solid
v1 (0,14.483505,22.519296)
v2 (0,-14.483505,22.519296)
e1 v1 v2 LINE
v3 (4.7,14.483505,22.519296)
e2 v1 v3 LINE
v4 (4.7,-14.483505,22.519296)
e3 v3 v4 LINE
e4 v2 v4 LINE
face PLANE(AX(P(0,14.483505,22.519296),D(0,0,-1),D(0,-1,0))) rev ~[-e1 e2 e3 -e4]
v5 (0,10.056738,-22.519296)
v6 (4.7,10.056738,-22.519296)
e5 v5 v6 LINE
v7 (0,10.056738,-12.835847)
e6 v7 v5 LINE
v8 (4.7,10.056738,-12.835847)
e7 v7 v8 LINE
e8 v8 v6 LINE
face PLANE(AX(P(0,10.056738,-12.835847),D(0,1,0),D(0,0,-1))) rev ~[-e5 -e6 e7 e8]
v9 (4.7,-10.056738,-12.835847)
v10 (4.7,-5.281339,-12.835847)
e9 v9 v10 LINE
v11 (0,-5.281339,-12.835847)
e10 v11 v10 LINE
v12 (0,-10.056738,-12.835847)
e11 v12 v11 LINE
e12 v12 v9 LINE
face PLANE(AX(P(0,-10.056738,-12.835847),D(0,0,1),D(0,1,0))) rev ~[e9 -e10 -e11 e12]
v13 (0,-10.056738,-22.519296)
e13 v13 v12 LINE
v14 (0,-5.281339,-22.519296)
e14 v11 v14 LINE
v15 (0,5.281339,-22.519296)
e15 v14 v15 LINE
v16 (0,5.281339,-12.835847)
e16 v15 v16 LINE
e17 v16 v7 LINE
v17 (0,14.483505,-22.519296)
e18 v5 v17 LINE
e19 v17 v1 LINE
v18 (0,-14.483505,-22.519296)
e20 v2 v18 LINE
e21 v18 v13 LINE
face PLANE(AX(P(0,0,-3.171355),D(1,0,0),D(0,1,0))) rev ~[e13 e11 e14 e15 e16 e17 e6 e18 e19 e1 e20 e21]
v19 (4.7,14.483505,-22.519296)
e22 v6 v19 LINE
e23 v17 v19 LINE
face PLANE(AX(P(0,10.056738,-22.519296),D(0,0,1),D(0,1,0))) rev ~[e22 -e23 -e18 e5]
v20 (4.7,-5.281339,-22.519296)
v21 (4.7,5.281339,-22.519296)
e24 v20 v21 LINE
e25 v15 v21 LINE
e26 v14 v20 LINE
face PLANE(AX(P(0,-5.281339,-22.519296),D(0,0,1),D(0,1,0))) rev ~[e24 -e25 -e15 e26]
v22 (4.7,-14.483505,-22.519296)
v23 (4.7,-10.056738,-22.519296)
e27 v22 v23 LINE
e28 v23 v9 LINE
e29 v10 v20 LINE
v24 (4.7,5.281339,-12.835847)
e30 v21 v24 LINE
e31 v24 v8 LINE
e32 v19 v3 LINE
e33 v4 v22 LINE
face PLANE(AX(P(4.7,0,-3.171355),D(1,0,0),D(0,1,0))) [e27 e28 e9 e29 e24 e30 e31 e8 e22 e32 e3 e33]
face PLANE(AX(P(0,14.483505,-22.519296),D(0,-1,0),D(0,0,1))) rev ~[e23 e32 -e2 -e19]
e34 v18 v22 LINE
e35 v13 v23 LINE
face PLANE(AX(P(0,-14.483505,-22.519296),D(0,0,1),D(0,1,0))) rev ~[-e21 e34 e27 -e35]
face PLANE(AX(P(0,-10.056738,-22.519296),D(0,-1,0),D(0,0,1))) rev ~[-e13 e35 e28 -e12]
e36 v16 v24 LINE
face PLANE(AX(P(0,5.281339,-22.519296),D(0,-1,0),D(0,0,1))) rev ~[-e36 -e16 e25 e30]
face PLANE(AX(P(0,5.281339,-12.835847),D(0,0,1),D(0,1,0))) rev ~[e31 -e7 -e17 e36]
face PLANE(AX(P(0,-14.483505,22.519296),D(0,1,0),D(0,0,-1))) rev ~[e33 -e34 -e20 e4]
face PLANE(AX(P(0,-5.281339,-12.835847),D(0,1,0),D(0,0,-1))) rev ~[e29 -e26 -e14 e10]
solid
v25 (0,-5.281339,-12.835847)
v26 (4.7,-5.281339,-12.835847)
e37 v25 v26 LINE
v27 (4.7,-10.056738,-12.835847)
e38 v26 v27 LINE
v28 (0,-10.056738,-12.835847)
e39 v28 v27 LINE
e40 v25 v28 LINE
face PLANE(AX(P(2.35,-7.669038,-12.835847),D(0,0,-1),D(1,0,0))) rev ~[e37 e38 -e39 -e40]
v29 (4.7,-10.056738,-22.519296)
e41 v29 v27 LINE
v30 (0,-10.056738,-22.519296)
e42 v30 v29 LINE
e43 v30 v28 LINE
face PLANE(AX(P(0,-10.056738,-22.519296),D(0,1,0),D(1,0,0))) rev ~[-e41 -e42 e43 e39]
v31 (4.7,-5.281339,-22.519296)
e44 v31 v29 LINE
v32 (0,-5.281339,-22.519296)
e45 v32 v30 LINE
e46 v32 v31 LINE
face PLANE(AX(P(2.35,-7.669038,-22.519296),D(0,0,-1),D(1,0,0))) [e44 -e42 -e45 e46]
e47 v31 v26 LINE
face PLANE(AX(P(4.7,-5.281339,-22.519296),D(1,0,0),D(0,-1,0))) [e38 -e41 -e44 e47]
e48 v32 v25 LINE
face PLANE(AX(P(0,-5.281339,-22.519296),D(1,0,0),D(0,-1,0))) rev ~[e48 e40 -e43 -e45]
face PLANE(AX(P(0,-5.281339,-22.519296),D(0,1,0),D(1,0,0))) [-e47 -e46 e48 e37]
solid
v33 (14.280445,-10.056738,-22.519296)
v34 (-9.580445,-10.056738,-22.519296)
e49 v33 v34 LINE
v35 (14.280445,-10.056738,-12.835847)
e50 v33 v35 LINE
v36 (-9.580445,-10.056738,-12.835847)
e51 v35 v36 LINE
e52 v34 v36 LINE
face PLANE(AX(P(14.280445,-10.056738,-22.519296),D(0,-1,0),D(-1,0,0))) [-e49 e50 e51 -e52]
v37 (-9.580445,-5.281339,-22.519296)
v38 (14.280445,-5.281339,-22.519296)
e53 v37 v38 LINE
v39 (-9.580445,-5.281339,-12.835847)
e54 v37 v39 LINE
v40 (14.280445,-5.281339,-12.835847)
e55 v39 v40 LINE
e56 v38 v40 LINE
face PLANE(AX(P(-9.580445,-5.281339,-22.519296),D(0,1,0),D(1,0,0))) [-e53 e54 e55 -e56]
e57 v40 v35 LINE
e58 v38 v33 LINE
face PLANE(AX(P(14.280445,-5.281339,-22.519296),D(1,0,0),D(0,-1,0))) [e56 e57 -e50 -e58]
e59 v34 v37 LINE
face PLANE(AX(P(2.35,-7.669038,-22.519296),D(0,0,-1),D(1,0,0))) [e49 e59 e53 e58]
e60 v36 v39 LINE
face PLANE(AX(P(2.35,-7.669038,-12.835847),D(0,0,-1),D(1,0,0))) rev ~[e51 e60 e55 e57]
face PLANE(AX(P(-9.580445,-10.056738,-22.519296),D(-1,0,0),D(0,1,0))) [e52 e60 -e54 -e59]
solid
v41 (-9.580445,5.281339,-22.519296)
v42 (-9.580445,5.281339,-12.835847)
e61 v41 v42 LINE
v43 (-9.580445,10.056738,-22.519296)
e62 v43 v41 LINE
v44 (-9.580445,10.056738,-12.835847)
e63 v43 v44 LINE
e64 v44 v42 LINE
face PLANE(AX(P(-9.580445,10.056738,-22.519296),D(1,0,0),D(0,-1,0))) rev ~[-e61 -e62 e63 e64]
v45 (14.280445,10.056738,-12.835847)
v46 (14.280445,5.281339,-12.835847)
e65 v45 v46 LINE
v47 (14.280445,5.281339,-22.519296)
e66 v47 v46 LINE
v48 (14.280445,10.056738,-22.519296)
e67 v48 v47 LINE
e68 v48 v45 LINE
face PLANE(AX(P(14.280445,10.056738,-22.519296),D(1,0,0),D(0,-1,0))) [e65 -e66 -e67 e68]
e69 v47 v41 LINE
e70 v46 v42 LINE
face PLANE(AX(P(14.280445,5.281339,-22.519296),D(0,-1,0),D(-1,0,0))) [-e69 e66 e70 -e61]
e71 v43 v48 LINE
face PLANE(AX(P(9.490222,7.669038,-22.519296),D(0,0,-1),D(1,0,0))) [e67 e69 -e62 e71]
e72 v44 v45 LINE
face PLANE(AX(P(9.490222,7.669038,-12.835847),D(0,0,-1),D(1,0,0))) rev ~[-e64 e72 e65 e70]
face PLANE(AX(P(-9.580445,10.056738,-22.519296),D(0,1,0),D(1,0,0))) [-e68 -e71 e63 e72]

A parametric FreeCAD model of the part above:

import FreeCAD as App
import Part
import Sketcher
Q = App.Units.Quantity


def add_polygon(sketch, points):
    """Adds a closed chain of lines whose ends are joined by coincident constraints."""
    first, n = sketch.GeometryCount, len(points)
    for a, b in zip(points, points[1:] + points[:1]):
        sketch.addGeometry(Part.LineSegment(App.Vector(*a, 0), App.Vector(*b, 0)), False)
    for i in range(n):
        sketch.addConstraint(Sketcher.Constraint("Coincident", first + i, 2, first + (i + 1) % n, 1))

doc = App.newDocument("Part")
body = doc.addObject("PartDesign::Body", "Body")

sketch1 = body.newObject("Sketcher::SketchObject", "Sketch")
sketch1.AttachmentSupport = (doc.getObject("YZ_Plane"), [""])
sketch1.MapMode = "FlatFace"
add_polygon(sketch1, [(10.1, -22.5), (14.5, -22.5), (14.5, 22.5), (-14.5, 22.5), (-14.5, -22.5), (-10.1, -22.5), (-10.1, -12.8), (-5.3, -12.8), (-5.3, -22.5), (5.3, -22.5), (5.3, -12.8), (10.1, -12.8)])
sketch1.addConstraint(Sketcher.Constraint("Horizontal", 0))
sketch1.addConstraint(Sketcher.Constraint("Vertical", 1))
sketch1.addConstraint(Sketcher.Constraint("Horizontal", 2))
sketch1.addConstraint(Sketcher.Constraint("Vertical", 3))
sketch1.addConstraint(Sketcher.Constraint("Horizontal", 4))
sketch1.addConstraint(Sketcher.Constraint("Vertical", 5))
sketch1.addConstraint(Sketcher.Constraint("Horizontal", 6))
sketch1.addConstraint(Sketcher.Constraint("Vertical", 7))
sketch1.addConstraint(Sketcher.Constraint("Horizontal", 8))
sketch1.addConstraint(Sketcher.Constraint("Vertical", 9))
sketch1.addConstraint(Sketcher.Constraint("Horizontal", 10))
sketch1.addConstraint(Sketcher.Constraint("Vertical", 11))
sketch1.addConstraint(Sketcher.Constraint("Symmetric", 0, 2, 2, 2, -1, 1))
sketch1.addConstraint(Sketcher.Constraint("Symmetric", 6, 2, 9, 2, -2))
sketch1.addConstraint(Sketcher.Constraint("Symmetric", 4, 2, 11, 2, -2))
sketch1.addConstraint(Sketcher.Constraint("Horizontal", 4, 2, 7, 2))
sketch1.addConstraint(Sketcher.Constraint("DistanceX", 6, 1, 6, 2, Q("4.775399 mm")))
sketch1.addConstraint(Sketcher.Constraint("DistanceX", 2, 2, 2, 1, Q("28.96701 mm")))
sketch1.addConstraint(Sketcher.Constraint("DistanceY", 5, 1, 5, 2, Q("9.683449 mm")))
sketch1.addConstraint(Sketcher.Constraint("DistanceX", 0, 1, 0, 2, Q("4.426767 mm")))
sketch1.addConstraint(Sketcher.Constraint("DistanceY", 1, 1, 1, 2, Q("45.038592 mm")))
pad1 = body.newObject("PartDesign::Pad", "Pad")
pad1.Profile = sketch1
pad1.Length = 4.7
body2 = doc.addObject("PartDesign::Body", "Body001")

sketch2 = body2.newObject("Sketcher::SketchObject", "Sketch001")
sketch2.AttachmentSupport = (doc.getObject("XY_Plane001"), [""])
sketch2.MapMode = "FlatFace"
sketch2.AttachmentOffset = App.Placement(App.Vector(0, 0, -22.519296), App.Rotation())
add_polygon(sketch2, [(14.3, 10.1), (14.3, 5.3), (-9.6, 5.3), (-9.6, 10.1)])
sketch2.addConstraint(Sketcher.Constraint("Vertical", 0))
sketch2.addConstraint(Sketcher.Constraint("Horizontal", 1))
sketch2.addConstraint(Sketcher.Constraint("Vertical", 2))
sketch2.addConstraint(Sketcher.Constraint("Horizontal", 3))
sketch2.addConstraint(Sketcher.Constraint("DistanceY", 0, 2, 0, 1, Q("4.775399 mm")))
sketch2.addConstraint(Sketcher.Constraint("DistanceX", 1, 2, 1, 1, Q("23.860889 mm")))
sketch2.addConstraint(Sketcher.Constraint("DistanceY", -1, 1, 0, 2, Q("5.281339 mm")))
sketch2.addConstraint(Sketcher.Constraint("DistanceX", -1, 1, 0, 2, Q("14.280445 mm")))
pad2 = body2.newObject("PartDesign::Pad", "Pad001")
pad2.Profile = sketch2
pad2.Length = 9.683449
body3 = doc.addObject("PartDesign::Body", "Body002")

sketch3 = body3.newObject("Sketcher::SketchObject", "Sketch002")
sketch3.AttachmentSupport = (doc.getObject("XY_Plane002"), [""])
sketch3.MapMode = "FlatFace"
sketch3.AttachmentOffset = App.Placement(App.Vector(0, 0, -22.519296), App.Rotation())
add_polygon(sketch3, [(-9.6, -5.3), (14.3, -5.3), (14.3, -10.1), (-9.6, -10.1)])
sketch3.addConstraint(Sketcher.Constraint("Horizontal", 0))
sketch3.addConstraint(Sketcher.Constraint("Vertical", 1))
sketch3.addConstraint(Sketcher.Constraint("Horizontal", 2))
sketch3.addConstraint(Sketcher.Constraint("Vertical", 3))
sketch3.addConstraint(Sketcher.Constraint("DistanceY", 1, 2, 1, 1, Q("4.775399 mm")))
sketch3.addConstraint(Sketcher.Constraint("DistanceX", 0, 1, 0, 2, Q("23.860889 mm")))
sketch3.addConstraint(Sketcher.Constraint("DistanceY", 0, 2, -1, 1, Q("5.281339 mm")))
sketch3.addConstraint(Sketcher.Constraint("DistanceX", -1, 1, 0, 2, Q("14.280445 mm")))
pad3 = body3.newObject("PartDesign::Pad", "Pad002")
pad3.Profile = sketch3
pad3.Length = 9.683449
body4 = doc.addObject("PartDesign::Body", "Body003")

sketch4 = body4.newObject("Sketcher::SketchObject", "Sketch003")
sketch4.AttachmentSupport = (doc.getObject("XY_Plane003"), [""])
sketch4.MapMode = "FlatFace"
sketch4.AttachmentOffset = App.Placement(App.Vector(0, 0, -22.519296), App.Rotation())
add_polygon(sketch4, [(0, -10.1), (0, -5.3), (4.7, -5.3), (4.7, -10.1)])
sketch4.addConstraint(Sketcher.Constraint("Vertical", 0))
sketch4.addConstraint(Sketcher.Constraint("Horizontal", 1))
sketch4.addConstraint(Sketcher.Constraint("Vertical", 2))
sketch4.addConstraint(Sketcher.Constraint("Horizontal", 3))
sketch4.addConstraint(Sketcher.Constraint("PointOnObject", 0, 2, -2))
sketch4.addConstraint(Sketcher.Constraint("DistanceX", 1, 1, 1, 2, Q("4.7 mm")))
sketch4.addConstraint(Sketcher.Constraint("DistanceY", 0, 1, 0, 2, Q("4.775399 mm")))
sketch4.addConstraint(Sketcher.Constraint("DistanceY", 0, 2, -1, 1, Q("5.281339 mm")))
pad4 = body4.newObject("PartDesign::Pad", "Pad003")
pad4.Profile = sketch4
pad4.Length = 9.683449

doc.recompute()
